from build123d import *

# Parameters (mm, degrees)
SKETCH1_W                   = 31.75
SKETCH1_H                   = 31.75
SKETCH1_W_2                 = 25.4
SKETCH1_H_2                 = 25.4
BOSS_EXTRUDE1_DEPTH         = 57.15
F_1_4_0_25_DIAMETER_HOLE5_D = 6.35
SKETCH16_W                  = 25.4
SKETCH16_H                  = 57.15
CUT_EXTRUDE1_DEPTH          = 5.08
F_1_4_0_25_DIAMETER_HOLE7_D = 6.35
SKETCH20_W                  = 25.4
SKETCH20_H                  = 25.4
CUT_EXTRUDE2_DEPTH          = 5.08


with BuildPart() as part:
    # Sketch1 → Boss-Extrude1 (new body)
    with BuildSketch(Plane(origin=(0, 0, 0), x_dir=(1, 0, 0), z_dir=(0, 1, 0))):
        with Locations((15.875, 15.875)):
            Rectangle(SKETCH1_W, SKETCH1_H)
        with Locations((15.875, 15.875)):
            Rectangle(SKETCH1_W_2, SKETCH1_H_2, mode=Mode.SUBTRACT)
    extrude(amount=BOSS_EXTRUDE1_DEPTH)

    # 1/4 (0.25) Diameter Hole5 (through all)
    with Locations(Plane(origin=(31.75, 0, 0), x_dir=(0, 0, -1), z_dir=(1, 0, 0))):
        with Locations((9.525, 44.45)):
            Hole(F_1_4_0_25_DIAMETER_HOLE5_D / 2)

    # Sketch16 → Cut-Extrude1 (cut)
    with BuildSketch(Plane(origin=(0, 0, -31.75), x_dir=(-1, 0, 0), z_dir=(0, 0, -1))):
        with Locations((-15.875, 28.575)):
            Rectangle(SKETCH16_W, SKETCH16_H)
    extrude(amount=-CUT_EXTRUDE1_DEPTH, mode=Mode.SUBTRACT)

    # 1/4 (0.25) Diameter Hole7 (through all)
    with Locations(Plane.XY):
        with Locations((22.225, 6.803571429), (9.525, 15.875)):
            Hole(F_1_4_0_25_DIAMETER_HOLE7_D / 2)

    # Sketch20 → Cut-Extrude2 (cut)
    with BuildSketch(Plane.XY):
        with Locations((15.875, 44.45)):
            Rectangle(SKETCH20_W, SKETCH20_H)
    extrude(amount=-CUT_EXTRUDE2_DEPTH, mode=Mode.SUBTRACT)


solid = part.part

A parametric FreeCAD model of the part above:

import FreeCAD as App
import Part
import Sketcher
Q = App.Units.Quantity


def add_polygon(sketch, points):
    """Adds a closed chain of lines whose ends are joined by coincident constraints."""
    first, n = sketch.GeometryCount, len(points)
    for a, b in zip(points, points[1:] + points[:1]):
        sketch.addGeometry(Part.LineSegment(App.Vector(*a, 0), App.Vector(*b, 0)), False)
    for i in range(n):
        sketch.addConstraint(Sketcher.Constraint("Coincident", first + i, 2, first + (i + 1) % n, 1))

doc = App.newDocument("Part")
body = doc.addObject("PartDesign::Body", "Body")

sketch1 = body.newObject("Sketcher::SketchObject", "Sketch")
sketch1.AttachmentSupport = (doc.getObject("XZ_Plane"), [""])
sketch1.MapMode = "FlatFace"
add_polygon(sketch1, [(0, -32), (0, 0), (32, 0), (32, -32)])
add_polygon(sketch1, [(29, -3), (3, -3), (3, -29), (29, -29)])
sketch1.addConstraint([
    Sketcher.Constraint("Vertical", 0),
    Sketcher.Constraint("Horizontal", 1),
    Sketcher.Constraint("Vertical", 2),
    Sketcher.Constraint("Horizontal", 3),
    Sketcher.Constraint("Horizontal", 4),
    Sketcher.Constraint("Vertical", 5),
    Sketcher.Constraint("Horizontal", 6),
    Sketcher.Constraint("Vertical", 7),
    Sketcher.Constraint("Coincident", 0, 2, -1, 1),
    Sketcher.Constraint("Equal", 3, 0),
    Sketcher.Constraint("Equal", 6, 5),
    Sketcher.Constraint("DistanceX", 4, 2, 4, 1, Q("1 in")),
    Sketcher.Constraint("DistanceX", 1, 1, 1, 2, Q("1.25 in")),
    Sketcher.Constraint("DistanceX", -1, 1, 4, 2, Q("0.125 in")),
    Sketcher.Constraint("DistanceY", 4, 2, -1, 1, Q("0.125 in")),
])
pad1 = body.newObject("PartDesign::Pad", "Pad")
pad1.Profile = sketch1
pad1.Length = Q("2.25 in")
pad1.Reversed = True

sketch2 = body.newObject("Sketcher::SketchObject", "Sketch001")
sketch2.AttachmentSupport = (doc.getObject("YZ_Plane"), [""])
sketch2.MapMode = "FlatFace"
sketch2.AttachmentOffset = App.Placement(App.Vector(0, 0, 1.25 * 25.4), App.Rotation())
sketch2.addGeometry(Part.Circle(App.Vector(44.5, -9.5, 0), App.Vector(0, 0, 1), 3.2), False)
sketch2.addConstraint([
    Sketcher.Constraint("Diameter", 0, Q("0.25 in")),
    Sketcher.Constraint("DistanceX", -1, 1, 0, 3, Q("1.75 in")),
    Sketcher.Constraint("DistanceY", 0, 3, -1, 1, Q("0.375 in")),
])
doc.recompute()
hole = body.newObject("PartDesign::Hole", "Hole")
hole.Profile = sketch2
hole.ThreadType = "None"
hole.Diameter = Q("0.25 in")
hole.DepthType = "ThroughAll"

sketch3 = body.newObject("Sketcher::SketchObject", "Sketch002")
sketch3.AttachmentSupport = (doc.getObject("XY_Plane"), [""])
sketch3.MapMode = "FlatFace"
sketch3.AttachmentOffset = App.Placement(App.Vector(0, 0, -1.25 * 25.4), App.Rotation())
add_polygon(sketch3, [(29, 57), (29, 0), (3, 0), (3, 57)])
sketch3.addConstraint([
    Sketcher.Constraint("Vertical", 0),
    Sketcher.Constraint("Horizontal", 1),
    Sketcher.Constraint("Vertical", 2),
    Sketcher.Constraint("Horizontal", 3),
    Sketcher.Constraint("PointOnObject", 0, 2, -1),
    Sketcher.Constraint("DistanceX", 1, 2, 1, 1, Q("1 in")),
    Sketcher.Constraint("DistanceY", 0, 2, 0, 1, Q("2.25 in")),
    Sketcher.Constraint("DistanceX", -1, 1, 0, 2, Q("1.125 in")),
])
pocket1 = body.newObject("PartDesign::Pocket", "Pocket")
pocket1.Profile = sketch3
pocket1.Length = Q("0.2 in")
pocket1.Reversed = True

sketch4 = body.newObject("Sketcher::SketchObject", "Sketch003")
sketch4.AttachmentSupport = (doc.getObject("XY_Plane"), [""])
sketch4.MapMode = "FlatFace"
sketch4.addGeometry([
    Part.Circle(App.Vector(22.2, 6.8, 0), App.Vector(0, 0, 1), 3.2),
    Part.Circle(App.Vector(9.5, 15.9, 0), App.Vector(0, 0, 1), 3.2),
], False)
sketch4.addConstraint([
    Sketcher.Constraint("Equal", 0, 1),
    Sketcher.Constraint("Diameter", 0, Q("0.25 in")),
    Sketcher.Constraint("DistanceX", 1, 3, 0, 3, Q("0.5 in")),
    Sketcher.Constraint("DistanceX", -1, 1, 0, 3, Q("0.875 in")),
    Sketcher.Constraint("DistanceY", -1, 1, 1, 3, Q("0.625 in")),
    Sketcher.Constraint("DistanceY", -1, 1, 0, 3, Q("6.803571 mm")),
])
doc.recompute()
hole2 = body.newObject("PartDesign::Hole", "Hole001")
hole2.Profile = sketch4
hole2.ThreadType = "None"
hole2.Diameter = Q("0.25 in")
hole2.DepthType = "ThroughAll"

sketch5 = body.newObject("Sketcher::SketchObject", "Sketch004")
sketch5.AttachmentSupport = (doc.getObject("XY_Plane"), [""])
sketch5.MapMode = "FlatFace"
add_polygon(sketch5, [(3, 57), (3, 32), (29, 32), (29, 57)])
sketch5.addConstraint([
    Sketcher.Constraint("Vertical", 0),
    Sketcher.Constraint("Horizontal", 1),
    Sketcher.Constraint("Vertical", 2),
    Sketcher.Constraint("Horizontal", 3),
    Sketcher.Constraint("Equal", 3, 0),
    Sketcher.Constraint("DistanceX", 1, 1, 1, 2, Q("1 in")),
    Sketcher.Constraint("DistanceY", -1, 1, 0, 2, Q("1.25 in")),
    Sketcher.Constraint("DistanceX", -1, 1, 0, 2, Q("0.125 in")),
])
pocket2 = body.newObject("PartDesign::Pocket", "Pocket001")
pocket2.Profile = sketch5
pocket2.Length = Q("0.2 in")

doc.recompute()
